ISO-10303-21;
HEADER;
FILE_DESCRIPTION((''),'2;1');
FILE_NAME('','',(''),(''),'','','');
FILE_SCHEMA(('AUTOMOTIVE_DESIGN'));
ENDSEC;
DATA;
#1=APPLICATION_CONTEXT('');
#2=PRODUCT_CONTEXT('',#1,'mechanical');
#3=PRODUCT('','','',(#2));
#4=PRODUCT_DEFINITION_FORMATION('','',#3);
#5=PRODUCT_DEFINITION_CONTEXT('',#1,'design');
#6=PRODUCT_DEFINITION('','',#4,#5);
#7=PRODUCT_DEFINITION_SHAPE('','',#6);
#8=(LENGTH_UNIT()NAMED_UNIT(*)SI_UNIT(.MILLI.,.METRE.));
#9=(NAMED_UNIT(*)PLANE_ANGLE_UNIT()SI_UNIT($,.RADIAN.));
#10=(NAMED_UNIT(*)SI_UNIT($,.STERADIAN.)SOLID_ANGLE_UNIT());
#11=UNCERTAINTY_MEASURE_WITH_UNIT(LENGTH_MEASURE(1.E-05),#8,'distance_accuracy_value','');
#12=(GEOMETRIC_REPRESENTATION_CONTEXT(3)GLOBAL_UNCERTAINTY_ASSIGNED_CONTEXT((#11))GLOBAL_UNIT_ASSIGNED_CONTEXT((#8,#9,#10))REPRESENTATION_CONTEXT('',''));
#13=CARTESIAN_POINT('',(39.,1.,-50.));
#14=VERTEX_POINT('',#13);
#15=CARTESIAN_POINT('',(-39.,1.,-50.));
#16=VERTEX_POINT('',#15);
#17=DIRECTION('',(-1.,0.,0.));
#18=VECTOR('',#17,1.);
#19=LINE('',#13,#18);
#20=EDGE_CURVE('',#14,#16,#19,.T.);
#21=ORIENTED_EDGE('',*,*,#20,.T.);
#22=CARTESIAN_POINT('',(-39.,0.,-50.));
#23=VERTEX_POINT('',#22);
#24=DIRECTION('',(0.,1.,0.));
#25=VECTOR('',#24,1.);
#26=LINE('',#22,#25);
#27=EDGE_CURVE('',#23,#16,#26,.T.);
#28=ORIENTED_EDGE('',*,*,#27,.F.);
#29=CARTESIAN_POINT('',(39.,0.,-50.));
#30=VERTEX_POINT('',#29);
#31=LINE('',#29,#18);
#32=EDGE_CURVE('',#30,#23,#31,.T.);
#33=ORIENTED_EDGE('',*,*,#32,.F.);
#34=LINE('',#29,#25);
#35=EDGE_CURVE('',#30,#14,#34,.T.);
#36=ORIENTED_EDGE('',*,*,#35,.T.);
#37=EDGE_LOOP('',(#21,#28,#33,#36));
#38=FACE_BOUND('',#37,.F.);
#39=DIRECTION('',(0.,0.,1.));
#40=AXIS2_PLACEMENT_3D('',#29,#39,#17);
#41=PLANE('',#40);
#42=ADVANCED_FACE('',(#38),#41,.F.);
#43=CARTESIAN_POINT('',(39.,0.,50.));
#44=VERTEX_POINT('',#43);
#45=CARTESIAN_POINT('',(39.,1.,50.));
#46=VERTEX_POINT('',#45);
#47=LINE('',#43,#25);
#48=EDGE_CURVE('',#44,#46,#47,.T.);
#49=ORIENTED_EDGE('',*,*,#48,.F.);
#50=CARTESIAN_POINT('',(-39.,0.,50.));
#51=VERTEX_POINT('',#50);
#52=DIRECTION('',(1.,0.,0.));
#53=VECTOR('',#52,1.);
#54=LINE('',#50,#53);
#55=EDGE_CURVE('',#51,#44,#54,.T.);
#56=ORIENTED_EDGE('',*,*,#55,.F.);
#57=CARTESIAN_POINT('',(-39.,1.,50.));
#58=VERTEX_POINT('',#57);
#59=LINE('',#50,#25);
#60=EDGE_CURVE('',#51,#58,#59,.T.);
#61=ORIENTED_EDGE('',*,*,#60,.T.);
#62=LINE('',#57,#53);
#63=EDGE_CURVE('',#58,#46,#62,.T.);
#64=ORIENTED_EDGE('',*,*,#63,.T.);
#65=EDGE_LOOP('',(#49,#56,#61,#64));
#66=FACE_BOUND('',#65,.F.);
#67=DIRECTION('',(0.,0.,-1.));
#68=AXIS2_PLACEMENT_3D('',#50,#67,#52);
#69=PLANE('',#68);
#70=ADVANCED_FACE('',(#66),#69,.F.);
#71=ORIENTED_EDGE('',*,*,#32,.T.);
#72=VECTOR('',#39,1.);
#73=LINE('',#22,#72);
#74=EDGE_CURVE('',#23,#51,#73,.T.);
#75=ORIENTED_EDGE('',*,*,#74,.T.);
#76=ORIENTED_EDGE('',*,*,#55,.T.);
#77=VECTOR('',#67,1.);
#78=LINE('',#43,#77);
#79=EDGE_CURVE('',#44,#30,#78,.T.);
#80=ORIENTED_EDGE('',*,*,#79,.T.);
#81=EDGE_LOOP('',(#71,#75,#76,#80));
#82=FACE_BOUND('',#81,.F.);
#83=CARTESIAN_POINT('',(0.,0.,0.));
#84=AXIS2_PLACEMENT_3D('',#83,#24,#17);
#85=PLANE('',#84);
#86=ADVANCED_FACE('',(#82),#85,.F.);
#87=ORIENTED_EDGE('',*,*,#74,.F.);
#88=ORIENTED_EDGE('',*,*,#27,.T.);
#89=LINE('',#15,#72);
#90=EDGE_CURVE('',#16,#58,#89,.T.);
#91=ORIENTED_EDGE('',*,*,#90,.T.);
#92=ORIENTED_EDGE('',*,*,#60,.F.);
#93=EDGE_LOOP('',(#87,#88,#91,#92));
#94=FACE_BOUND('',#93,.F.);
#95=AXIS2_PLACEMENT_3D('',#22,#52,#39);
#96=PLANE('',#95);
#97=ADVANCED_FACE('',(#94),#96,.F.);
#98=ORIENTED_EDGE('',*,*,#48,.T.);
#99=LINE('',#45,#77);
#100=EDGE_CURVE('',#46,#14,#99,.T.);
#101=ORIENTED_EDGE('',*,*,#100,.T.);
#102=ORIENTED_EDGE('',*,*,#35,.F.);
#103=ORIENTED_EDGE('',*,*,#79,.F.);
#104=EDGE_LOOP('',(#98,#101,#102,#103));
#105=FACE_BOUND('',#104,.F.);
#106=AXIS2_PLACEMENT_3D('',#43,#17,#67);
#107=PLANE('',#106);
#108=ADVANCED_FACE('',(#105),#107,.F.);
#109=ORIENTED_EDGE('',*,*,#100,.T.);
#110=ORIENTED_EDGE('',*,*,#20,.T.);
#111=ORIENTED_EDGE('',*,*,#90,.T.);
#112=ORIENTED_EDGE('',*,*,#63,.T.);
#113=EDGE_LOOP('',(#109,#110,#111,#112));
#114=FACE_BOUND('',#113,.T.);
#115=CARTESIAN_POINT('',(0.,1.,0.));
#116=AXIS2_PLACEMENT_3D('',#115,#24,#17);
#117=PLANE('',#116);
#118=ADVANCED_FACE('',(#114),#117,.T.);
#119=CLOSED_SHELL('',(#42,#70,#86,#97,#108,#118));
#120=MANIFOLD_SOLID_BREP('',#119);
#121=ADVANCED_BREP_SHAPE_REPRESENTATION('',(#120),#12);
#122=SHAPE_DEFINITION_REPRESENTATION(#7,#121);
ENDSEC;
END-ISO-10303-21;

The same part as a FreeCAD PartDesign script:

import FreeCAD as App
import Part
import Sketcher

V = App.Vector


def add_polygon(sketch, points):
    """Adds a closed chain of lines whose ends are joined by coincident constraints."""
    first, n = sketch.GeometryCount, len(points)
    for a, b in zip(points, points[1:] + points[:1]):
        sketch.addGeometry(Part.LineSegment(App.Vector(*a, 0), App.Vector(*b, 0)), False)
    for i in range(n):
        sketch.addConstraint(Sketcher.Constraint("Coincident", first + i, 2, first + (i + 1) % n, 1))

doc = App.newDocument("Part")
body = doc.addObject("PartDesign::Body", "Body")

sketch1 = doc.addObject("Sketcher::SketchObject", "Sketch")
body.addObject(sketch1)
sketch1.AttachmentSupport = (doc.XZ_Plane, [""])
sketch1.MapMode = "FlatFace"
add_polygon(sketch1, [(-39, -50), (-39, 50), (39, 50), (39, -50)])
sketch1.addConstraint([
    Sketcher.Constraint("Vertical", 0),
    Sketcher.Constraint("Horizontal", 1),
    Sketcher.Constraint("Vertical", 2),
    Sketcher.Constraint("Horizontal", 3),
    Sketcher.Constraint("Symmetric", 0, 2, 2, 2, -1, 1),
    Sketcher.Constraint("DistanceX", 1, 1, 1, 2, 78.0),
    Sketcher.Constraint("DistanceY", 0, 1, 0, 2, 100.0),
])
pad1 = doc.addObject("PartDesign::Pad", "Pad")
body.addObject(pad1)
pad1.Profile = sketch1
pad1.Length = 1
pad1.Reversed = True

doc.recompute()
